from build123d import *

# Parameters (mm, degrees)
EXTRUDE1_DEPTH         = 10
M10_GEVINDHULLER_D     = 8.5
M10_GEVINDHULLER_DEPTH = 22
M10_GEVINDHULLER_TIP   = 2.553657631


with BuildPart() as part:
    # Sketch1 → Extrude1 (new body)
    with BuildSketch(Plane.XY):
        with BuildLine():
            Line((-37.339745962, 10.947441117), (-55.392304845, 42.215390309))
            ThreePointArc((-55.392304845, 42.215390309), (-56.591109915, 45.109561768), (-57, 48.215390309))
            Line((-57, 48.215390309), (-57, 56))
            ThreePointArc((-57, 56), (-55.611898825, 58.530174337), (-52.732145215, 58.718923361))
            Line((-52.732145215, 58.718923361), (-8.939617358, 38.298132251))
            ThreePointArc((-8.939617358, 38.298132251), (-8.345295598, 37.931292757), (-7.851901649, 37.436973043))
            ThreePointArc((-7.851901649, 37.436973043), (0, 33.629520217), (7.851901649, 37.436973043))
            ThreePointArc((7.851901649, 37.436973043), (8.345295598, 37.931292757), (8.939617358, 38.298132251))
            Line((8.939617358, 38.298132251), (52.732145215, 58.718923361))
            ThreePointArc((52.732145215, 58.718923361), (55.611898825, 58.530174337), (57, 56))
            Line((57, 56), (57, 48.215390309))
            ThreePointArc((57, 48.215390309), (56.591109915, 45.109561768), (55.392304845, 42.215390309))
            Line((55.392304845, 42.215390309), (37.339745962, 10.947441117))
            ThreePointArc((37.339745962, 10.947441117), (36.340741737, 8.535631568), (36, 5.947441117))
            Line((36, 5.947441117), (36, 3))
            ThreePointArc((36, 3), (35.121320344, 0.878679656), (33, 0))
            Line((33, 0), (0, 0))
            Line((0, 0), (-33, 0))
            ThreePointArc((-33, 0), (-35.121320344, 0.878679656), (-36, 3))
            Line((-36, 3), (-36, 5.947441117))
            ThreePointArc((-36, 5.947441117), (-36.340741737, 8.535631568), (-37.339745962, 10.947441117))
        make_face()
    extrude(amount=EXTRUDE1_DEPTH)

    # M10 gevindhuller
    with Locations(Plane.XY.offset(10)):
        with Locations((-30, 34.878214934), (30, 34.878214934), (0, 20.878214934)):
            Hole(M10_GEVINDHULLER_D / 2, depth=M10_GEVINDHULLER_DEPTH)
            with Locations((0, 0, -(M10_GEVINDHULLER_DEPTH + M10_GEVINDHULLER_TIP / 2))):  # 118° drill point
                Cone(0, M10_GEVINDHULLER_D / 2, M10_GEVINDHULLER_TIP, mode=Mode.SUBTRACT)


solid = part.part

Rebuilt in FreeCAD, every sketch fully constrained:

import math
import FreeCAD as App
import Part
import Sketcher

V = App.Vector
Q = App.Units.Quantity

doc = App.newDocument("Part")
params = doc.addObject("Spreadsheet::Sheet", "Params")
for row, (alias, value) in enumerate([
    ("sketch1_radius", "10 mm"),
    ("sketch1_radius2", "3 mm"),
    ("sketch1_radius3", "12 mm"),
    ("sketch1_width", "66 mm"),
    ("pad1_length", "10 mm"),
    ("sketch2_diameter", "8.5 mm"),
    ("hole_diameter", "8.5 mm"),
    ("hole_depth", "22 mm"),
], start=1):
    params.set(f"A{row}", alias)
    params.set(f"B{row}", "=" + value)
    params.setAlias(f"B{row}", alias)

body = doc.addObject("PartDesign::Body", "Body")

# Sketch on XY plane
sketch1 = body.newObject("Sketcher::SketchObject", "Sketch")
sketch1.AttachmentSupport = (doc.getObject("XY_Plane"), [""])
sketch1.MapMode = "FlatFace"
sketch1.addGeometry(Part.LineSegment(V(-55.4, 42.2, 0), V(-37.3, 10.9, 0)), False)
sketch1.addGeometry(Part.ArcOfCircle(Part.Circle(V(-46, 5.9, 0), V(0, 0, 1), 10), math.radians(0), math.radians(30)), False)
sketch1.addGeometry(Part.LineSegment(V(-36, 5.9, 0), V(-36, 3, 0)), False)
sketch1.addGeometry(Part.ArcOfCircle(Part.Circle(V(-33, 3, 0), V(0, 0, 1), 3), math.radians(180), math.radians(270)), False)
sketch1.addGeometry(Part.LineSegment(V(-33, 0, 0), V(33, 0, 0)), False)
sketch1.addGeometry(Part.ArcOfCircle(Part.Circle(V(33, 3, 0), V(0, 0, 1), 3), math.radians(-90), math.radians(0)), False)
sketch1.addGeometry(Part.LineSegment(V(36, 3, 0), V(36, 5.9, 0)), False)
sketch1.addGeometry(Part.ArcOfCircle(Part.Circle(V(46, 5.9, 0), V(0, 0, 1), 10), math.radians(150), math.radians(180)), False)
sketch1.addGeometry(Part.LineSegment(V(37.3, 10.9, 0), V(55.4, 42.2, 0)), False)
sketch1.addGeometry(Part.ArcOfCircle(Part.Circle(V(45, 48.2, 0), V(0, 0, 1), 12), math.radians(-30), math.radians(0)), False)
sketch1.addGeometry(Part.LineSegment(V(57, 48.2, 0), V(57, 56, 0)), False)
sketch1.addGeometry(Part.ArcOfCircle(Part.Circle(V(54, 56, 0), V(0, 0, 1), 3), math.radians(0), math.radians(115)), False)
sketch1.addGeometry(Part.LineSegment(V(52.7, 58.7, 0), V(8.9, 38.3, 0)), False)
sketch1.addGeometry(Part.ArcOfCircle(Part.Circle(V(10.2, 35.6, 0), V(0, 0, 1), 3), math.radians(115), math.radians(142)), False)
sketch1.addGeometry(Part.ArcOfCircle(Part.Circle(V(0, 43.6, 0), V(0, 0, 1), 10), math.radians(-142), math.radians(-38)), False)
sketch1.addGeometry(Part.ArcOfCircle(Part.Circle(V(-10.2, 35.6, 0), V(0, 0, 1), 3), math.radians(38), math.radians(65)), False)
sketch1.addGeometry(Part.LineSegment(V(-8.9, 38.3, 0), V(-52.7, 58.7, 0)), False)
sketch1.addGeometry(Part.ArcOfCircle(Part.Circle(V(-54, 56, 0), V(0, 0, 1), 3), math.radians(65), math.radians(180)), False)
sketch1.addGeometry(Part.LineSegment(V(-57, 56, 0), V(-57, 48.2, 0)), False)
sketch1.addGeometry(Part.ArcOfCircle(Part.Circle(V(-45, 48.2, 0), V(0, 0, 1), 12), math.radians(-180), math.radians(-150)), False)
sketch1.addConstraint(Sketcher.Constraint("Tangent", 0, 2, 1, 2))
sketch1.addConstraint(Sketcher.Constraint("Tangent", 1, 1, 2, 1))
sketch1.addConstraint(Sketcher.Constraint("Tangent", 2, 2, 3, 1))
sketch1.addConstraint(Sketcher.Constraint("Tangent", 3, 2, 4, 1))
sketch1.addConstraint(Sketcher.Constraint("Tangent", 4, 2, 5, 1))
sketch1.addConstraint(Sketcher.Constraint("Tangent", 5, 2, 6, 1))
sketch1.addConstraint(Sketcher.Constraint("Tangent", 6, 2, 7, 2))
sketch1.addConstraint(Sketcher.Constraint("Tangent", 7, 1, 8, 1))
sketch1.addConstraint(Sketcher.Constraint("Tangent", 8, 2, 9, 1))
sketch1.addConstraint(Sketcher.Constraint("Tangent", 9, 2, 10, 1))
sketch1.addConstraint(Sketcher.Constraint("Tangent", 10, 2, 11, 1))
sketch1.addConstraint(Sketcher.Constraint("Tangent", 11, 2, 12, 1))
sketch1.addConstraint(Sketcher.Constraint("Tangent", 12, 2, 13, 1))
sketch1.addConstraint(Sketcher.Constraint("Tangent", 13, 2, 14, 2))
sketch1.addConstraint(Sketcher.Constraint("Tangent", 14, 1, 15, 1))
sketch1.addConstraint(Sketcher.Constraint("Tangent", 15, 2, 16, 1))
sketch1.addConstraint(Sketcher.Constraint("Tangent", 16, 2, 17, 1))
sketch1.addConstraint(Sketcher.Constraint("Tangent", 17, 2, 18, 1))
sketch1.addConstraint(Sketcher.Constraint("Tangent", 18, 2, 19, 1))
sketch1.addConstraint(Sketcher.Constraint("Tangent", 19, 2, 0, 1))
sketch1.addConstraint(Sketcher.Constraint("Vertical", 2))
sketch1.addConstraint(Sketcher.Constraint("Horizontal", 4))
sketch1.addConstraint(Sketcher.Constraint("Vertical", 6))
sketch1.addConstraint(Sketcher.Constraint("Vertical", 10))
sketch1.addConstraint(Sketcher.Constraint("Vertical", 18))
sketch1.addConstraint(Sketcher.Constraint("Equal", 3, 5))
sketch1.addConstraint(Sketcher.Constraint("Equal", 1, 7))
sketch1.addConstraint(Sketcher.Constraint("Equal", 5, 11))
sketch1.addConstraint(Sketcher.Constraint("Equal", 11, 13))
sketch1.addConstraint(Sketcher.Constraint("Equal", 7, 14))
sketch1.addConstraint(Sketcher.Constraint("Equal", 13, 15))
sketch1.addConstraint(Sketcher.Constraint("Equal", 15, 17))
sketch1.addConstraint(Sketcher.Constraint("Equal", 9, 19))
sketch1.addConstraint(Sketcher.Constraint("Symmetric", 3, 2, 4, 2, -1, 1))
sketch1.addConstraint(Sketcher.Constraint("Symmetric", 13, 3, 15, 3, -2))
sketch1.addConstraint(Sketcher.Constraint("Symmetric", 11, 3, 17, 3, -2))
sketch1.addConstraint(Sketcher.Constraint("Symmetric", 0, 2, 7, 1, -2))
sketch1.addConstraint(Sketcher.Constraint("Radius", 1, 10.0))
sketch1.addConstraint(Sketcher.Constraint("Radius", 3, 3.0))
sketch1.addConstraint(Sketcher.Constraint("Radius", 9, 12.0))
sketch1.addConstraint(Sketcher.Constraint("DistanceX", 4, 1, 4, 2, 66.0))
sketch1.addConstraint(Sketcher.Constraint("Angle", 0, Q("-60 deg")))
sketch1.addConstraint(Sketcher.Constraint("Angle", 12, Q("-155 deg")))
sketch1.addConstraint(Sketcher.Constraint("DistanceX", -1, 1, 9, 3, 45.0))
sketch1.addConstraint(Sketcher.Constraint("DistanceY", -1, 1, 11, 3, 56.0))
sketch1.addConstraint(Sketcher.Constraint("DistanceY", 2, 2, 2, 1, 2.947441))
sketch1.addConstraint(Sketcher.Constraint("DistanceX", -1, 1, 13, 2, 7.851902))
sketch1.setExpression("Constraints[37]", "Params.sketch1_radius")
sketch1.setExpression("Constraints[38]", "Params.sketch1_radius2")
sketch1.setExpression("Constraints[39]", "Params.sketch1_radius3")
sketch1.setExpression("Constraints[40]", "Params.sketch1_width")
pad1 = body.newObject("PartDesign::Pad", "Pad")
pad1.Profile = sketch1
pad1.setExpression("Length", "Params.pad1_length")

# Sketch on XY plane
sketch2 = body.newObject("Sketcher::SketchObject", "Sketch001")
sketch2.AttachmentSupport = (doc.getObject("XY_Plane"), [""])
sketch2.MapMode = "FlatFace"
sketch2.AttachmentOffset = App.Placement(V(0, 0, 10), App.Rotation())
sketch2.addGeometry(Part.Circle(V(-30, 34.9, 0), V(0, 0, 1), 4.2), False)
sketch2.addGeometry(Part.Circle(V(30, 34.9, 0), V(0, 0, 1), 4.2), False)
sketch2.addGeometry(Part.Circle(V(0, 20.9, 0), V(0, 0, 1), 4.2), False)
sketch2.addConstraint(Sketcher.Constraint("Equal", 0, 1))
sketch2.addConstraint(Sketcher.Constraint("Equal", 1, 2))
sketch2.addConstraint(Sketcher.Constraint("Symmetric", 0, 3, 1, 3, -2))
sketch2.addConstraint(Sketcher.Constraint("PointOnObject", 2, 3, -2))
sketch2.addConstraint(Sketcher.Constraint("Diameter", 0, 8.5))
sketch2.addConstraint(Sketcher.Constraint("DistanceX", 0, 3, -1, 1, 30.0))
sketch2.addConstraint(Sketcher.Constraint("DistanceY", 2, 3, 0, 3, 14.0))
sketch2.addConstraint(Sketcher.Constraint("DistanceY", -1, 1, 0, 3, 34.878215))
sketch2.setExpression("Constraints[4]", "Params.sketch2_diameter")
doc.recompute()
hole = body.newObject("PartDesign::Hole", "Hole")
hole.Profile = sketch2
hole.ThreadType = "None"
hole.setExpression("Diameter", "Params.hole_diameter")
hole.DepthType = "Dimension"
hole.setExpression("Depth", "Params.hole_depth")
hole.DrillPoint = "Angled"
hole.DrillPointAngle = 118

doc.recompute()
